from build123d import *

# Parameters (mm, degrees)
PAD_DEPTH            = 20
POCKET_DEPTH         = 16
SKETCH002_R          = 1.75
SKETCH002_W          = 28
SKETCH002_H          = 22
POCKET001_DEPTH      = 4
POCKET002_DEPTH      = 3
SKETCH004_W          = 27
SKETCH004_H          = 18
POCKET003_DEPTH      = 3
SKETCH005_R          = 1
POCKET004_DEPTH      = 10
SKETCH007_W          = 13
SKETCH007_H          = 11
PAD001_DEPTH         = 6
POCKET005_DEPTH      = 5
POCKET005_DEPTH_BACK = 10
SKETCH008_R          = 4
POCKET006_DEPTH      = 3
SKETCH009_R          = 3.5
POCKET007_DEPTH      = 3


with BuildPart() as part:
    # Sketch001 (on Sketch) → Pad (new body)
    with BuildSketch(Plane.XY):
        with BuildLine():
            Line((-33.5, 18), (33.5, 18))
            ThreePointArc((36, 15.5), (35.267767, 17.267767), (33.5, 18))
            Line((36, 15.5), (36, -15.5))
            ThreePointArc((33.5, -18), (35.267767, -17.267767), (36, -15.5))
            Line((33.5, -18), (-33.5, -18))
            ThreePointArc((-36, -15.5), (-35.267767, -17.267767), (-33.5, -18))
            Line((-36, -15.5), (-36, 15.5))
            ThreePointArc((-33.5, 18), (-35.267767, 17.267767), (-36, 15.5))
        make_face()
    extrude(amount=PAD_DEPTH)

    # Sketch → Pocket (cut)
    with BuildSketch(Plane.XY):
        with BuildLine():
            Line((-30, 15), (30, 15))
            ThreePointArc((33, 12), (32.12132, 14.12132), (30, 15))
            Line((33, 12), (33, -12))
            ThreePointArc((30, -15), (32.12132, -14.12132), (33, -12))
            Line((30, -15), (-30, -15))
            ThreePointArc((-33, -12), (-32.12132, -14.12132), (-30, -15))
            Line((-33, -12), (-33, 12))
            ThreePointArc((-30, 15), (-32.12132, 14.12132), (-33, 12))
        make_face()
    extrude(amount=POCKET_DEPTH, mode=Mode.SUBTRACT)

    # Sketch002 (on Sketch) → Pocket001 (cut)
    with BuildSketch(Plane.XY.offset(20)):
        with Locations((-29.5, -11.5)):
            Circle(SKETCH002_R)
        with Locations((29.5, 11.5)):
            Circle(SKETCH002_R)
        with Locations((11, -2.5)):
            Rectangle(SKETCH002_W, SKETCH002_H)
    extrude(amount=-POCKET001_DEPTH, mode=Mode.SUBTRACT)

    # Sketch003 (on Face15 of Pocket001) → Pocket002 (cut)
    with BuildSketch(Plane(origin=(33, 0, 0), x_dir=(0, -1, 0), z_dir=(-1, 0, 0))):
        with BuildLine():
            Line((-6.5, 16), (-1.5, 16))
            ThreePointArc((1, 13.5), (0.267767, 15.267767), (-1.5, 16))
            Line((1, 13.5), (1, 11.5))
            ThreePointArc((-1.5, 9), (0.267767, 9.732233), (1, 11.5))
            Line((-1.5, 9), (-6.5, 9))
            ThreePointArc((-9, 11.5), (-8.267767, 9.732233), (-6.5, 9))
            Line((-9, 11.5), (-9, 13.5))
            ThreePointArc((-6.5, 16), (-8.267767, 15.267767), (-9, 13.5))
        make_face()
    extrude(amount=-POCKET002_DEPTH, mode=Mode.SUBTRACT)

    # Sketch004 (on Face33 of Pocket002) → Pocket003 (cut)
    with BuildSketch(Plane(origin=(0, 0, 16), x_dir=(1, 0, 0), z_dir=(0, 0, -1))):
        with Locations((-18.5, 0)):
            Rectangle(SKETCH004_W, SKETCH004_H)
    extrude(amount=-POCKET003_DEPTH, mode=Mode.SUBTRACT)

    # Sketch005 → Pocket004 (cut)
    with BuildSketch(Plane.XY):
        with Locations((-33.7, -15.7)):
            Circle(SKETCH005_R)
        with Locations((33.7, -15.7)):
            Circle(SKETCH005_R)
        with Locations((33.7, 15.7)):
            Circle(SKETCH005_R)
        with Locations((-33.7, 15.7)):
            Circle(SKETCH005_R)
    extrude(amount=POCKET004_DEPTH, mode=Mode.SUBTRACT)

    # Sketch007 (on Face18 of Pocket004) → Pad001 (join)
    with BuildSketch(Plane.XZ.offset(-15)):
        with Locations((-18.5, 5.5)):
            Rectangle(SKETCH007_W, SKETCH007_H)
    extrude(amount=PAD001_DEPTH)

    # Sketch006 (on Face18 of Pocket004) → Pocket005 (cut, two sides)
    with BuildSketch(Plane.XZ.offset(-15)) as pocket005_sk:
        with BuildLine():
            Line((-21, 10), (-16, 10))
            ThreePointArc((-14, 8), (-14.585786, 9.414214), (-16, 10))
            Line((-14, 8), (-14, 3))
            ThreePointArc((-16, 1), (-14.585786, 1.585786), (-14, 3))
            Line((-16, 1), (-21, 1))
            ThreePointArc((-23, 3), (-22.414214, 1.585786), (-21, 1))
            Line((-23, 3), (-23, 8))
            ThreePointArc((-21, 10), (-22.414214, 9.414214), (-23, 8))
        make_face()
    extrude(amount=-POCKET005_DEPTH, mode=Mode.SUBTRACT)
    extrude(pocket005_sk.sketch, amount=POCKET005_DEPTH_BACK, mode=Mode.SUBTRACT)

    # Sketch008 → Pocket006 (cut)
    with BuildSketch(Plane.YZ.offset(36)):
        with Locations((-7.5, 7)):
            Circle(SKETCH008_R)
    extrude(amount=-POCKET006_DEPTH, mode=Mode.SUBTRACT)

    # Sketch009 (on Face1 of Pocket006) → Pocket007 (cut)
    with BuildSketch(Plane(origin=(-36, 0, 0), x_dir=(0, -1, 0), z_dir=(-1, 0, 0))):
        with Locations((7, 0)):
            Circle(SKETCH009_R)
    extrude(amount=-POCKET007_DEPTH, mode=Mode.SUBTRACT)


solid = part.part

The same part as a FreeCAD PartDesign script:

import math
import FreeCAD as App
import Part
import Sketcher
from FreeCAD import Vector

doc = App.newDocument("Part")
body = doc.addObject("PartDesign::Body", "Body")

sketch1 = body.newObject("Sketcher::SketchObject", "Sketch")
sketch1.AttachmentSupport = (doc.getObject("XY_Plane"), [""])
sketch1.MapMode = "FlatFace"
sketch1.addGeometry([
    Part.LineSegment(Vector(33.5, 18, 0), Vector(-33.5, 18, 0)),
    Part.ArcOfCircle(Part.Circle(Vector(-33.5, 15.5, 0), Vector(0, 0, 1), 2.5), math.radians(90), math.radians(180)),
    Part.LineSegment(Vector(-36, 15.5, 0), Vector(-36, -15.5, 0)),
    Part.ArcOfCircle(Part.Circle(Vector(-33.5, -15.5, 0), Vector(0, 0, 1), 2.5), math.radians(180), math.radians(270)),
    Part.LineSegment(Vector(-33.5, -18, 0), Vector(33.5, -18, 0)),
    Part.ArcOfCircle(Part.Circle(Vector(33.5, -15.5, 0), Vector(0, 0, 1), 2.5), math.radians(-90), math.radians(0)),
    Part.LineSegment(Vector(36, -15.5, 0), Vector(36, 15.5, 0)),
    Part.ArcOfCircle(Part.Circle(Vector(33.5, 15.5, 0), Vector(0, 0, 1), 2.5), math.radians(0), math.radians(90)),
], False)
sketch1.addConstraint([
    Sketcher.Constraint("Tangent", 0, 2, 1, 1),
    Sketcher.Constraint("Tangent", 1, 2, 2, 1),
    Sketcher.Constraint("Tangent", 2, 2, 3, 1),
    Sketcher.Constraint("Tangent", 3, 2, 4, 1),
    Sketcher.Constraint("Tangent", 4, 2, 5, 1),
    Sketcher.Constraint("Tangent", 5, 2, 6, 1),
    Sketcher.Constraint("Tangent", 6, 2, 7, 1),
    Sketcher.Constraint("Tangent", 7, 2, 0, 1),
    Sketcher.Constraint("Horizontal", 0),
    Sketcher.Constraint("Vertical", 2),
    Sketcher.Constraint("Horizontal", 4),
    Sketcher.Constraint("Vertical", 6),
    Sketcher.Constraint("Equal", 1, 3),
    Sketcher.Constraint("Equal", 3, 5),
    Sketcher.Constraint("Equal", 5, 7),
    Sketcher.Constraint("Symmetric", 1, 3, 5, 3, -1, 1),
    Sketcher.Constraint("Radius", 1, 2.5),
    Sketcher.Constraint("DistanceX", 0, 2, 0, 1, 67.0),
    Sketcher.Constraint("DistanceY", 2, 2, 2, 1, 31.0),
])
pad1 = body.newObject("PartDesign::Pad", "Pad")
pad1.Profile = sketch1
pad1.Length = 20

sketch2 = body.newObject("Sketcher::SketchObject", "Sketch001")
sketch2.AttachmentSupport = (doc.getObject("XY_Plane"), [""])
sketch2.MapMode = "FlatFace"
sketch2.addGeometry([
    Part.LineSegment(Vector(30, 15, 0), Vector(-30, 15, 0)),
    Part.ArcOfCircle(Part.Circle(Vector(-30, 12, 0), Vector(0, 0, 1), 3), math.radians(90), math.radians(180)),
    Part.LineSegment(Vector(-33, 12, 0), Vector(-33, -12, 0)),
    Part.ArcOfCircle(Part.Circle(Vector(-30, -12, 0), Vector(0, 0, 1), 3), math.radians(-180), math.radians(-90)),
    Part.LineSegment(Vector(-30, -15, 0), Vector(30, -15, 0)),
    Part.ArcOfCircle(Part.Circle(Vector(30, -12, 0), Vector(0, 0, 1), 3), math.radians(-90), math.radians(0)),
    Part.LineSegment(Vector(33, -12, 0), Vector(33, 12, 0)),
    Part.ArcOfCircle(Part.Circle(Vector(30, 12, 0), Vector(0, 0, 1), 3), math.radians(0), math.radians(90)),
], False)
sketch2.addConstraint([
    Sketcher.Constraint("Tangent", 0, 2, 1, 1),
    Sketcher.Constraint("Tangent", 1, 2, 2, 1),
    Sketcher.Constraint("Tangent", 2, 2, 3, 1),
    Sketcher.Constraint("Tangent", 3, 2, 4, 1),
    Sketcher.Constraint("Tangent", 4, 2, 5, 1),
    Sketcher.Constraint("Tangent", 5, 2, 6, 1),
    Sketcher.Constraint("Tangent", 6, 2, 7, 1),
    Sketcher.Constraint("Tangent", 7, 2, 0, 1),
    Sketcher.Constraint("Horizontal", 0),
    Sketcher.Constraint("Vertical", 2),
    Sketcher.Constraint("Horizontal", 4),
    Sketcher.Constraint("Vertical", 6),
    Sketcher.Constraint("Equal", 1, 3),
    Sketcher.Constraint("Equal", 3, 5),
    Sketcher.Constraint("Equal", 5, 7),
    Sketcher.Constraint("Symmetric", 1, 3, 5, 3, -1, 1),
    Sketcher.Constraint("Radius", 1, 3.000001),
    Sketcher.Constraint("DistanceX", 0, 2, 0, 1, 60.0),
    Sketcher.Constraint("DistanceY", 2, 2, 2, 1, 24.0),
])
pocket1 = body.newObject("PartDesign::Pocket", "Pocket")
pocket1.Profile = sketch2
pocket1.Length = 16
pocket1.Reversed = True

sketch3 = body.newObject("Sketcher::SketchObject", "Sketch002")
sketch3.AttachmentSupport = (doc.getObject("XY_Plane"), [""])
sketch3.MapMode = "FlatFace"
sketch3.AttachmentOffset = App.Placement(Vector(0, 0, 20), App.Rotation())
sketch3.addGeometry([
    Part.Circle(Vector(-29.5, -11.5, 0), Vector(0, 0, 1), 1.8),
    Part.Circle(Vector(29.5, 11.5, 0), Vector(0, 0, 1), 1.8),
    Part.LineSegment(Vector(-3, 8.5, 0), Vector(-3, -13.5, 0)),
    Part.LineSegment(Vector(-3, -13.5, 0), Vector(25, -13.5, 0)),
    Part.LineSegment(Vector(25, -13.5, 0), Vector(25, 8.5, 0)),
    Part.LineSegment(Vector(25, 8.5, 0), Vector(-3, 8.5, 0)),
], False)
sketch3.addConstraint([
    Sketcher.Constraint("Coincident", 2, 2, 3, 1),
    Sketcher.Constraint("Coincident", 3, 2, 4, 1),
    Sketcher.Constraint("Coincident", 4, 2, 5, 1),
    Sketcher.Constraint("Coincident", 5, 2, 2, 1),
    Sketcher.Constraint("Vertical", 2),
    Sketcher.Constraint("Horizontal", 3),
    Sketcher.Constraint("Vertical", 4),
    Sketcher.Constraint("Horizontal", 5),
    Sketcher.Constraint("Equal", 0, 1),
    Sketcher.Constraint("Symmetric", 0, 3, 1, 3, -1, 1),
    Sketcher.Constraint("Diameter", 0, 3.5),
    Sketcher.Constraint("DistanceX", 3, 1, 3, 2, 28.0),
    Sketcher.Constraint("DistanceY", 2, 2, 2, 1, 22.0),
    Sketcher.Constraint("DistanceX", 2, 2, -1, 1, 3.0),
    Sketcher.Constraint("DistanceX", 0, 3, 1, 3, 59.0),
    Sketcher.Constraint("DistanceY", 0, 3, 1, 3, 23.0),
    Sketcher.Constraint("DistanceY", 2, 2, 0, 3, 2.0),
])
pocket2 = body.newObject("PartDesign::Pocket", "Pocket001")
pocket2.Profile = sketch3
pocket2.Length = 4

sketch4 = body.newObject("Sketcher::SketchObject", "Sketch003")
sketch4.AttachmentSupport = (doc.getObject("YZ_Plane"), [""])
sketch4.MapMode = "FlatFace"
sketch4.AttachmentOffset = App.Placement(Vector(0, 0, 33), App.Rotation())
sketch4.addGeometry([
    Part.LineSegment(Vector(1.5, 16, 0), Vector(6.5, 16, 0)),
    Part.ArcOfCircle(Part.Circle(Vector(6.5, 13.5, 0), Vector(0, 0, 1), 2.5), math.radians(0), math.radians(90)),
    Part.LineSegment(Vector(9, 13.5, 0), Vector(9, 11.5, 0)),
    Part.ArcOfCircle(Part.Circle(Vector(6.5, 11.5, 0), Vector(0, 0, 1), 2.5), math.radians(-90), math.radians(0)),
    Part.LineSegment(Vector(6.5, 9, 0), Vector(1.5, 9, 0)),
    Part.ArcOfCircle(Part.Circle(Vector(1.5, 11.5, 0), Vector(0, 0, 1), 2.5), math.radians(180), math.radians(270)),
    Part.LineSegment(Vector(-1, 11.5, 0), Vector(-1, 13.5, 0)),
    Part.ArcOfCircle(Part.Circle(Vector(1.5, 13.5, 0), Vector(0, 0, 1), 2.5), math.radians(90), math.radians(180)),
], False)
sketch4.addConstraint([
    Sketcher.Constraint("Tangent", 0, 2, 1, 2),
    Sketcher.Constraint("Tangent", 1, 1, 2, 1),
    Sketcher.Constraint("Tangent", 2, 2, 3, 2),
    Sketcher.Constraint("Tangent", 3, 1, 4, 1),
    Sketcher.Constraint("Tangent", 4, 2, 5, 2),
    Sketcher.Constraint("Tangent", 5, 1, 6, 1),
    Sketcher.Constraint("Tangent", 6, 2, 7, 2),
    Sketcher.Constraint("Tangent", 7, 1, 0, 1),
    Sketcher.Constraint("Horizontal", 0),
    Sketcher.Constraint("Vertical", 2),
    Sketcher.Constraint("Horizontal", 4),
    Sketcher.Constraint("Vertical", 6),
    Sketcher.Constraint("Equal", 1, 3),
    Sketcher.Constraint("Equal", 3, 5),
    Sketcher.Constraint("Equal", 5, 7),
    Sketcher.Constraint("Radius", 1, 2.5),
    Sketcher.Constraint("DistanceX", 0, 1, 0, 2, 5.0),
    Sketcher.Constraint("DistanceY", 2, 2, 2, 1, 2.0),
    Sketcher.Constraint("DistanceY", -1, 1, 0, 2, 16.0),
    Sketcher.Constraint("DistanceX", -1, 1, 1, 1, 9.0),
])
pocket3 = body.newObject("PartDesign::Pocket", "Pocket002")
pocket3.Profile = sketch4
pocket3.Length = 3
pocket3.Reversed = True

sketch5 = body.newObject("Sketcher::SketchObject", "Sketch004")
sketch5.AttachmentSupport = (doc.getObject("XY_Plane"), [""])
sketch5.MapMode = "FlatFace"
sketch5.AttachmentOffset = App.Placement(Vector(0, 0, 16), App.Rotation())
sketch5.addGeometry([
    Part.LineSegment(Vector(-32, -9, 0), Vector(-32, 9, 0)),
    Part.LineSegment(Vector(-32, 9, 0), Vector(-5, 9, 0)),
    Part.LineSegment(Vector(-5, 9, 0), Vector(-5, -9, 0)),
    Part.LineSegment(Vector(-5, -9, 0), Vector(-32, -9, 0)),
], False)
sketch5.addConstraint([
    Sketcher.Constraint("Coincident", 0, 2, 1, 1),
    Sketcher.Constraint("Coincident", 1, 2, 2, 1),
    Sketcher.Constraint("Coincident", 2, 2, 3, 1),
    Sketcher.Constraint("Coincident", 3, 2, 0, 1),
    Sketcher.Constraint("Vertical", 0),
    Sketcher.Constraint("Horizontal", 1),
    Sketcher.Constraint("Vertical", 2),
    Sketcher.Constraint("Horizontal", 3),
    Sketcher.Constraint("DistanceX", 1, 1, 1, 2, 27.0),
    Sketcher.Constraint("DistanceY", 0, 1, 0, 2, 18.0),
    Sketcher.Constraint("DistanceX", 0, 2, -1, 1, 32.0),
    Sketcher.Constraint("DistanceY", -1, 1, 0, 2, 9.0),
])
pocket4 = body.newObject("PartDesign::Pocket", "Pocket003")
pocket4.Profile = sketch5
pocket4.Length = 3
pocket4.Reversed = True

sketch6 = body.newObject("Sketcher::SketchObject", "Sketch005")
sketch6.AttachmentSupport = (doc.getObject("XY_Plane"), [""])
sketch6.MapMode = "FlatFace"
sketch6.addGeometry([
    Part.Circle(Vector(-33.7, -15.7, 0), Vector(0, 0, 1), 1),
    Part.Circle(Vector(33.7, -15.7, 0), Vector(0, 0, 1), 1),
    Part.Circle(Vector(33.7, 15.7, 0), Vector(0, 0, 1), 1),
    Part.Circle(Vector(-33.7, 15.7, 0), Vector(0, 0, 1), 1),
], False)
sketch6.addConstraint([
    Sketcher.Constraint("Equal", 0, 1),
    Sketcher.Constraint("Equal", 1, 2),
    Sketcher.Constraint("Equal", 2, 3),
    Sketcher.Constraint("Symmetric", 0, 3, 2, 3, -1, 1),
    Sketcher.Constraint("Symmetric", 1, 3, 3, 3, -1, 1),
    Sketcher.Constraint("Symmetric", 0, 3, 1, 3, -2),
    Sketcher.Constraint("Diameter", 0, 2.0),
    Sketcher.Constraint("DistanceX", 0, 3, -1, 1, 33.7),
    Sketcher.Constraint("DistanceY", 0, 3, -1, 1, 15.7),
])
pocket5 = body.newObject("PartDesign::Pocket", "Pocket004")
pocket5.Profile = sketch6
pocket5.Length = 10
pocket5.Reversed = True

sketch7 = body.newObject("Sketcher::SketchObject", "Sketch006")
sketch7.AttachmentSupport = (doc.getObject("XZ_Plane"), [""])
sketch7.MapMode = "FlatFace"
sketch7.AttachmentOffset = App.Placement(Vector(0, 0, -15), App.Rotation())
sketch7.addGeometry([
    Part.LineSegment(Vector(-25, 11, 0), Vector(-25, 0, 0)),
    Part.LineSegment(Vector(-25, 0, 0), Vector(-12, 0, 0)),
    Part.LineSegment(Vector(-12, 0, 0), Vector(-12, 11, 0)),
    Part.LineSegment(Vector(-12, 11, 0), Vector(-25, 11, 0)),
], False)
sketch7.addConstraint([
    Sketcher.Constraint("Coincident", 0, 2, 1, 1),
    Sketcher.Constraint("Coincident", 1, 2, 2, 1),
    Sketcher.Constraint("Coincident", 2, 2, 3, 1),
    Sketcher.Constraint("Coincident", 3, 2, 0, 1),
    Sketcher.Constraint("Vertical", 0),
    Sketcher.Constraint("Horizontal", 1),
    Sketcher.Constraint("Vertical", 2),
    Sketcher.Constraint("Horizontal", 3),
    Sketcher.Constraint("PointOnObject", 0, 2, -1),
    Sketcher.Constraint("DistanceX", 1, 1, 1, 2, 13.0),
    Sketcher.Constraint("DistanceY", 0, 2, 0, 1, 11.0),
    Sketcher.Constraint("DistanceX", 0, 2, -1, 1, 25.0),
])
pad2 = body.newObject("PartDesign::Pad", "Pad001")
pad2.Profile = sketch7
pad2.Length = 6

sketch8 = body.newObject("Sketcher::SketchObject", "Sketch007")
sketch8.AttachmentSupport = (doc.getObject("XZ_Plane"), [""])
sketch8.MapMode = "FlatFace"
sketch8.AttachmentOffset = App.Placement(Vector(0, 0, -15), App.Rotation())
sketch8.addGeometry([
    Part.LineSegment(Vector(-16, 10, 0), Vector(-21, 10, 0)),
    Part.ArcOfCircle(Part.Circle(Vector(-21, 8, 0), Vector(0, 0, 1), 2), math.radians(90), math.radians(180)),
    Part.LineSegment(Vector(-23, 8, 0), Vector(-23, 3, 0)),
    Part.ArcOfCircle(Part.Circle(Vector(-21, 3, 0), Vector(0, 0, 1), 2), math.radians(180), math.radians(270)),
    Part.LineSegment(Vector(-21, 1, 0), Vector(-16, 1, 0)),
    Part.ArcOfCircle(Part.Circle(Vector(-16, 3, 0), Vector(0, 0, 1), 2), math.radians(-90), math.radians(0)),
    Part.LineSegment(Vector(-14, 3, 0), Vector(-14, 8, 0)),
    Part.ArcOfCircle(Part.Circle(Vector(-16, 8, 0), Vector(0, 0, 1), 2), math.radians(0), math.radians(90)),
], False)
sketch8.addConstraint([
    Sketcher.Constraint("Tangent", 0, 2, 1, 1),
    Sketcher.Constraint("Tangent", 1, 2, 2, 1),
    Sketcher.Constraint("Tangent", 2, 2, 3, 1),
    Sketcher.Constraint("Tangent", 3, 2, 4, 1),
    Sketcher.Constraint("Tangent", 4, 2, 5, 1),
    Sketcher.Constraint("Tangent", 5, 2, 6, 1),
    Sketcher.Constraint("Tangent", 6, 2, 7, 1),
    Sketcher.Constraint("Tangent", 7, 2, 0, 1),
    Sketcher.Constraint("Horizontal", 0),
    Sketcher.Constraint("Vertical", 2),
    Sketcher.Constraint("Horizontal", 4),
    Sketcher.Constraint("Vertical", 6),
    Sketcher.Constraint("Equal", 1, 3),
    Sketcher.Constraint("Equal", 3, 5),
    Sketcher.Constraint("Equal", 5, 7),
    Sketcher.Constraint("Equal", 4, 2),
    Sketcher.Constraint("Radius", 1, 1.999999),
    Sketcher.Constraint("DistanceX", 0, 2, 0, 1, 5.0),
    Sketcher.Constraint("DistanceX", 1, 3, -1, 1, 21.000001),
    Sketcher.Constraint("DistanceY", -1, 1, 1, 3, 8.000001),
])
pocket6 = body.newObject("PartDesign::Pocket", "Pocket005")
pocket6.Profile = sketch8
pocket6.Type = "TwoLengths"
pocket6.Length = 5
pocket6.Length2 = 10

sketch9 = body.newObject("Sketcher::SketchObject", "Sketch008")
sketch9.AttachmentSupport = (doc.getObject("YZ_Plane"), [""])
sketch9.MapMode = "FlatFace"
sketch9.AttachmentOffset = App.Placement(Vector(0, 0, 36), App.Rotation())
sketch9.addGeometry(Part.Circle(Vector(-7.5, 7, 0), Vector(0, 0, 1), 4), False)
sketch9.addConstraint([
    Sketcher.Constraint("Diameter", 0, 8.0),
    Sketcher.Constraint("DistanceY", -1, 1, 0, 3, 7.0),
    Sketcher.Constraint("DistanceX", 0, 3, -1, 1, 7.5),
])
pocket7 = body.newObject("PartDesign::Pocket", "Pocket006")
pocket7.Profile = sketch9
pocket7.Length = 3

sketch10 = body.newObject("Sketcher::SketchObject", "Sketch009")
sketch10.AttachmentSupport = (doc.getObject("YZ_Plane"), [""])
sketch10.MapMode = "FlatFace"
sketch10.AttachmentOffset = App.Placement(Vector(0, 0, -36), App.Rotation())
sketch10.addGeometry(Part.Circle(Vector(-7, 0, 0), Vector(0, 0, 1), 3.5), False)
sketch10.addConstraint([
    Sketcher.Constraint("PointOnObject", 0, 3, -1),
    Sketcher.Constraint("Diameter", 0, 7.0),
    Sketcher.Constraint("DistanceX", 0, 3, -1, 1, 7.0),
])
pocket8 = body.newObject("PartDesign::Pocket", "Pocket007")
pocket8.Profile = sketch10
pocket8.Length = 3
pocket8.Reversed = True

doc.recompute()
